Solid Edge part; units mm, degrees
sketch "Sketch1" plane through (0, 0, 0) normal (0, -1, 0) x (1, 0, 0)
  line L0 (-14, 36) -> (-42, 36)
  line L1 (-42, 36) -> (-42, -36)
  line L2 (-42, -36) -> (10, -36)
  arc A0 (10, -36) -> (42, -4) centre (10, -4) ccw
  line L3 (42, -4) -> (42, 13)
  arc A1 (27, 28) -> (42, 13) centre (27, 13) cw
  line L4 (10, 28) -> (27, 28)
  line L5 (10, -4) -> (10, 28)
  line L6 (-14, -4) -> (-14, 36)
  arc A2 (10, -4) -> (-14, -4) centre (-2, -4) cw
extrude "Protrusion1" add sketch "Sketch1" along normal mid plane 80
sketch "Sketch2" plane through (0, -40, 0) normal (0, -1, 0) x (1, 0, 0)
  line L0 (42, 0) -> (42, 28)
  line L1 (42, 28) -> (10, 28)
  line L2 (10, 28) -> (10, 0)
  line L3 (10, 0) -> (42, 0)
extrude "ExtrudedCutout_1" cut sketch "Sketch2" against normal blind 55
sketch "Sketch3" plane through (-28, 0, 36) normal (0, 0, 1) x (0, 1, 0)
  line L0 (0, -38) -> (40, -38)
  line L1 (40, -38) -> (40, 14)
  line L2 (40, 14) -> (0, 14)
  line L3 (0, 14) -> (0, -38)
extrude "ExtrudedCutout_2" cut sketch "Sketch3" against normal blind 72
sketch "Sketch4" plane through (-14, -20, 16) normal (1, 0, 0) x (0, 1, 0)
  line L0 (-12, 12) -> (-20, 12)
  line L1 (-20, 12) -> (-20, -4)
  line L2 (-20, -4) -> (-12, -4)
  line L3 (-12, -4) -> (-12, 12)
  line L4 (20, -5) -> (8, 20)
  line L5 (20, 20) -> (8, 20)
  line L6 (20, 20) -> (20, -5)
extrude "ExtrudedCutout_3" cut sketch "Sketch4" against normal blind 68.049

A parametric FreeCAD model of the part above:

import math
import FreeCAD as App
import Part
import Sketcher

V = App.Vector


def add_polygon(sketch, points):
    """Adds a closed chain of lines whose ends are joined by coincident constraints."""
    first, n = sketch.GeometryCount, len(points)
    for a, b in zip(points, points[1:] + points[:1]):
        sketch.addGeometry(Part.LineSegment(App.Vector(*a, 0), App.Vector(*b, 0)), False)
    for i in range(n):
        sketch.addConstraint(Sketcher.Constraint("Coincident", first + i, 2, first + (i + 1) % n, 1))

doc = App.newDocument("Part")
body = doc.addObject("PartDesign::Body", "Body")

# Sketch on XZ plane
sketch1 = body.newObject("Sketcher::SketchObject", "Sketch")
sketch1.AttachmentSupport = (doc.getObject("XZ_Plane"), [""])
sketch1.MapMode = "FlatFace"
sketch1.addGeometry([
    Part.LineSegment(V(-14, -4, 0), V(-14, 36, 0)),  # 0
    Part.LineSegment(V(-14, 36, 0), V(-42, 36, 0)),  # 1
    Part.LineSegment(V(-42, 36, 0), V(-42, -36, 0)),  # 2
    Part.LineSegment(V(-42, -36, 0), V(10, -36, 0)),  # 3
    Part.ArcOfCircle(Part.Circle(V(10, -4, 0), V(0, 0, 1), 32), math.radians(-90), math.radians(0)),  # 4
    Part.LineSegment(V(42, -4, 0), V(42, 13, 0)),  # 5
    Part.ArcOfCircle(Part.Circle(V(27, 13, 0), V(0, 0, 1), 15), math.radians(0), math.radians(90)),  # 6
    Part.LineSegment(V(27, 28, 0), V(10, 28, 0)),  # 7
    Part.LineSegment(V(10, 28, 0), V(10, -4, 0)),  # 8
    Part.ArcOfCircle(Part.Circle(V(-2, -4, 0), V(0, 0, 1), 12), math.radians(180), math.radians(360)),  # 9
], False)
sketch1.addConstraint([
    Sketcher.Constraint("Coincident", 0, 2, 1, 1),
    Sketcher.Constraint("Coincident", 1, 2, 2, 1),
    Sketcher.Constraint("Coincident", 2, 2, 3, 1),
    Sketcher.Constraint("Tangent", 3, 2, 4, 1),
    Sketcher.Constraint("Tangent", 4, 2, 5, 1),
    Sketcher.Constraint("Tangent", 5, 2, 6, 1),
    Sketcher.Constraint("Tangent", 6, 2, 7, 1),
    Sketcher.Constraint("Coincident", 7, 2, 8, 1),
    Sketcher.Constraint("Tangent", 8, 2, 9, 2),
    Sketcher.Constraint("Tangent", 9, 1, 0, 1),
    Sketcher.Constraint("Vertical", 0),
    Sketcher.Constraint("Horizontal", 1),
    Sketcher.Constraint("Vertical", 2),
    Sketcher.Constraint("Horizontal", 3),
    Sketcher.Constraint("Vertical", 5),
    Sketcher.Constraint("Horizontal", 7),
    Sketcher.Constraint("Vertical", 8),
    Sketcher.Constraint("Coincident", 8, 2, 4, 3),
    Sketcher.Constraint("Equal", 7, 5),
    Sketcher.Constraint("Radius", 4, 32.0),
    Sketcher.Constraint("Radius", 6, 15.0),
    Sketcher.Constraint("Radius", 9, 12.0),
    Sketcher.Constraint("DistanceX", 1, 2, 1, 1, 28.0),
    Sketcher.Constraint("DistanceY", 0, 1, 0, 2, 40.0),
    Sketcher.Constraint("DistanceX", -1, 1, 4, 3, 10.0),
    Sketcher.Constraint("DistanceY", 4, 3, -1, 1, 4.0),
])
pad1 = body.newObject("PartDesign::Pad", "Pad")
pad1.Profile = sketch1
pad1.Length = 80
pad1.Midplane = True

# Sketch on XZ plane
sketch2 = body.newObject("Sketcher::SketchObject", "Sketch001")
sketch2.AttachmentSupport = (doc.getObject("XZ_Plane"), [""])
sketch2.MapMode = "FlatFace"
sketch2.AttachmentOffset = App.Placement(V(0, 0, 40), App.Rotation())
add_polygon(sketch2, [(10, 0), (42, 0), (42, 28), (10, 28)])  # lines 0-3
sketch2.addConstraint([
    Sketcher.Constraint("Horizontal", 0),
    Sketcher.Constraint("Vertical", 1),
    Sketcher.Constraint("Horizontal", 2),
    Sketcher.Constraint("Vertical", 3),
    Sketcher.Constraint("PointOnObject", 0, 2, -1),
    Sketcher.Constraint("DistanceX", 0, 1, 0, 2, 32.0),
    Sketcher.Constraint("DistanceY", 1, 1, 1, 2, 28.0),
    Sketcher.Constraint("DistanceX", -1, 1, 0, 2, 42.0),
])
pocket1 = body.newObject("PartDesign::Pocket", "Pocket")
pocket1.Profile = sketch2
pocket1.Length = 55

# Sketch on XY plane
sketch3 = body.newObject("Sketcher::SketchObject", "Sketch002")
sketch3.AttachmentSupport = (doc.getObject("XY_Plane"), [""])
sketch3.MapMode = "FlatFace"
sketch3.AttachmentOffset = App.Placement(V(0, 0, 36), App.Rotation())
add_polygon(sketch3, [(-42, 0), (10, 0), (10, 40), (-42, 40)])  # lines 0-3
sketch3.addConstraint([
    Sketcher.Constraint("Horizontal", 0),
    Sketcher.Constraint("Vertical", 1),
    Sketcher.Constraint("Horizontal", 2),
    Sketcher.Constraint("Vertical", 3),
    Sketcher.Constraint("PointOnObject", 0, 2, -1),
    Sketcher.Constraint("DistanceX", 0, 1, 0, 2, 52.0),
    Sketcher.Constraint("DistanceY", 1, 1, 1, 2, 40.0),
    Sketcher.Constraint("DistanceX", -1, 1, 0, 2, 10.0),
])
pocket2 = body.newObject("PartDesign::Pocket", "Pocket001")
pocket2.Profile = sketch3
pocket2.Length = 72

# Sketch on YZ plane
sketch4 = body.newObject("Sketcher::SketchObject", "Sketch003")
sketch4.AttachmentSupport = (doc.getObject("YZ_Plane"), [""])
sketch4.MapMode = "FlatFace"
sketch4.AttachmentOffset = App.Placement(V(0, 0, -14), App.Rotation())
add_polygon(sketch4, [(-32, 12), (-32, 28), (-40, 28), (-40, 12)])  # lines 0-3
add_polygon(sketch4, [(-12, 36), (0, 11), (0, 36)])  # lines 4-6
sketch4.addConstraint([
    Sketcher.Constraint("Vertical", 0),
    Sketcher.Constraint("Horizontal", 1),
    Sketcher.Constraint("Vertical", 2),
    Sketcher.Constraint("Horizontal", 3),
    Sketcher.Constraint("Vertical", 5),
    Sketcher.Constraint("Horizontal", 6),
    Sketcher.Constraint("PointOnObject", 4, 2, -2),
    Sketcher.Constraint("DistanceX", 1, 2, 1, 1, 8.0),
    Sketcher.Constraint("DistanceX", 6, 2, 6, 1, 12.0),
    Sketcher.Constraint("DistanceY", 0, 1, 0, 2, 16.0),
    Sketcher.Constraint("DistanceY", 5, 1, 5, 2, 25.0),
    Sketcher.Constraint("DistanceX", 0, 2, -1, 1, 32.0),
    Sketcher.Constraint("DistanceY", -1, 1, 0, 2, 28.0),
    Sketcher.Constraint("DistanceY", -1, 1, 4, 2, 11.0),
])
pocket3 = body.newObject("PartDesign::Pocket", "Pocket002")
pocket3.Profile = sketch4
pocket3.Length = 68.049

doc.recompute()
